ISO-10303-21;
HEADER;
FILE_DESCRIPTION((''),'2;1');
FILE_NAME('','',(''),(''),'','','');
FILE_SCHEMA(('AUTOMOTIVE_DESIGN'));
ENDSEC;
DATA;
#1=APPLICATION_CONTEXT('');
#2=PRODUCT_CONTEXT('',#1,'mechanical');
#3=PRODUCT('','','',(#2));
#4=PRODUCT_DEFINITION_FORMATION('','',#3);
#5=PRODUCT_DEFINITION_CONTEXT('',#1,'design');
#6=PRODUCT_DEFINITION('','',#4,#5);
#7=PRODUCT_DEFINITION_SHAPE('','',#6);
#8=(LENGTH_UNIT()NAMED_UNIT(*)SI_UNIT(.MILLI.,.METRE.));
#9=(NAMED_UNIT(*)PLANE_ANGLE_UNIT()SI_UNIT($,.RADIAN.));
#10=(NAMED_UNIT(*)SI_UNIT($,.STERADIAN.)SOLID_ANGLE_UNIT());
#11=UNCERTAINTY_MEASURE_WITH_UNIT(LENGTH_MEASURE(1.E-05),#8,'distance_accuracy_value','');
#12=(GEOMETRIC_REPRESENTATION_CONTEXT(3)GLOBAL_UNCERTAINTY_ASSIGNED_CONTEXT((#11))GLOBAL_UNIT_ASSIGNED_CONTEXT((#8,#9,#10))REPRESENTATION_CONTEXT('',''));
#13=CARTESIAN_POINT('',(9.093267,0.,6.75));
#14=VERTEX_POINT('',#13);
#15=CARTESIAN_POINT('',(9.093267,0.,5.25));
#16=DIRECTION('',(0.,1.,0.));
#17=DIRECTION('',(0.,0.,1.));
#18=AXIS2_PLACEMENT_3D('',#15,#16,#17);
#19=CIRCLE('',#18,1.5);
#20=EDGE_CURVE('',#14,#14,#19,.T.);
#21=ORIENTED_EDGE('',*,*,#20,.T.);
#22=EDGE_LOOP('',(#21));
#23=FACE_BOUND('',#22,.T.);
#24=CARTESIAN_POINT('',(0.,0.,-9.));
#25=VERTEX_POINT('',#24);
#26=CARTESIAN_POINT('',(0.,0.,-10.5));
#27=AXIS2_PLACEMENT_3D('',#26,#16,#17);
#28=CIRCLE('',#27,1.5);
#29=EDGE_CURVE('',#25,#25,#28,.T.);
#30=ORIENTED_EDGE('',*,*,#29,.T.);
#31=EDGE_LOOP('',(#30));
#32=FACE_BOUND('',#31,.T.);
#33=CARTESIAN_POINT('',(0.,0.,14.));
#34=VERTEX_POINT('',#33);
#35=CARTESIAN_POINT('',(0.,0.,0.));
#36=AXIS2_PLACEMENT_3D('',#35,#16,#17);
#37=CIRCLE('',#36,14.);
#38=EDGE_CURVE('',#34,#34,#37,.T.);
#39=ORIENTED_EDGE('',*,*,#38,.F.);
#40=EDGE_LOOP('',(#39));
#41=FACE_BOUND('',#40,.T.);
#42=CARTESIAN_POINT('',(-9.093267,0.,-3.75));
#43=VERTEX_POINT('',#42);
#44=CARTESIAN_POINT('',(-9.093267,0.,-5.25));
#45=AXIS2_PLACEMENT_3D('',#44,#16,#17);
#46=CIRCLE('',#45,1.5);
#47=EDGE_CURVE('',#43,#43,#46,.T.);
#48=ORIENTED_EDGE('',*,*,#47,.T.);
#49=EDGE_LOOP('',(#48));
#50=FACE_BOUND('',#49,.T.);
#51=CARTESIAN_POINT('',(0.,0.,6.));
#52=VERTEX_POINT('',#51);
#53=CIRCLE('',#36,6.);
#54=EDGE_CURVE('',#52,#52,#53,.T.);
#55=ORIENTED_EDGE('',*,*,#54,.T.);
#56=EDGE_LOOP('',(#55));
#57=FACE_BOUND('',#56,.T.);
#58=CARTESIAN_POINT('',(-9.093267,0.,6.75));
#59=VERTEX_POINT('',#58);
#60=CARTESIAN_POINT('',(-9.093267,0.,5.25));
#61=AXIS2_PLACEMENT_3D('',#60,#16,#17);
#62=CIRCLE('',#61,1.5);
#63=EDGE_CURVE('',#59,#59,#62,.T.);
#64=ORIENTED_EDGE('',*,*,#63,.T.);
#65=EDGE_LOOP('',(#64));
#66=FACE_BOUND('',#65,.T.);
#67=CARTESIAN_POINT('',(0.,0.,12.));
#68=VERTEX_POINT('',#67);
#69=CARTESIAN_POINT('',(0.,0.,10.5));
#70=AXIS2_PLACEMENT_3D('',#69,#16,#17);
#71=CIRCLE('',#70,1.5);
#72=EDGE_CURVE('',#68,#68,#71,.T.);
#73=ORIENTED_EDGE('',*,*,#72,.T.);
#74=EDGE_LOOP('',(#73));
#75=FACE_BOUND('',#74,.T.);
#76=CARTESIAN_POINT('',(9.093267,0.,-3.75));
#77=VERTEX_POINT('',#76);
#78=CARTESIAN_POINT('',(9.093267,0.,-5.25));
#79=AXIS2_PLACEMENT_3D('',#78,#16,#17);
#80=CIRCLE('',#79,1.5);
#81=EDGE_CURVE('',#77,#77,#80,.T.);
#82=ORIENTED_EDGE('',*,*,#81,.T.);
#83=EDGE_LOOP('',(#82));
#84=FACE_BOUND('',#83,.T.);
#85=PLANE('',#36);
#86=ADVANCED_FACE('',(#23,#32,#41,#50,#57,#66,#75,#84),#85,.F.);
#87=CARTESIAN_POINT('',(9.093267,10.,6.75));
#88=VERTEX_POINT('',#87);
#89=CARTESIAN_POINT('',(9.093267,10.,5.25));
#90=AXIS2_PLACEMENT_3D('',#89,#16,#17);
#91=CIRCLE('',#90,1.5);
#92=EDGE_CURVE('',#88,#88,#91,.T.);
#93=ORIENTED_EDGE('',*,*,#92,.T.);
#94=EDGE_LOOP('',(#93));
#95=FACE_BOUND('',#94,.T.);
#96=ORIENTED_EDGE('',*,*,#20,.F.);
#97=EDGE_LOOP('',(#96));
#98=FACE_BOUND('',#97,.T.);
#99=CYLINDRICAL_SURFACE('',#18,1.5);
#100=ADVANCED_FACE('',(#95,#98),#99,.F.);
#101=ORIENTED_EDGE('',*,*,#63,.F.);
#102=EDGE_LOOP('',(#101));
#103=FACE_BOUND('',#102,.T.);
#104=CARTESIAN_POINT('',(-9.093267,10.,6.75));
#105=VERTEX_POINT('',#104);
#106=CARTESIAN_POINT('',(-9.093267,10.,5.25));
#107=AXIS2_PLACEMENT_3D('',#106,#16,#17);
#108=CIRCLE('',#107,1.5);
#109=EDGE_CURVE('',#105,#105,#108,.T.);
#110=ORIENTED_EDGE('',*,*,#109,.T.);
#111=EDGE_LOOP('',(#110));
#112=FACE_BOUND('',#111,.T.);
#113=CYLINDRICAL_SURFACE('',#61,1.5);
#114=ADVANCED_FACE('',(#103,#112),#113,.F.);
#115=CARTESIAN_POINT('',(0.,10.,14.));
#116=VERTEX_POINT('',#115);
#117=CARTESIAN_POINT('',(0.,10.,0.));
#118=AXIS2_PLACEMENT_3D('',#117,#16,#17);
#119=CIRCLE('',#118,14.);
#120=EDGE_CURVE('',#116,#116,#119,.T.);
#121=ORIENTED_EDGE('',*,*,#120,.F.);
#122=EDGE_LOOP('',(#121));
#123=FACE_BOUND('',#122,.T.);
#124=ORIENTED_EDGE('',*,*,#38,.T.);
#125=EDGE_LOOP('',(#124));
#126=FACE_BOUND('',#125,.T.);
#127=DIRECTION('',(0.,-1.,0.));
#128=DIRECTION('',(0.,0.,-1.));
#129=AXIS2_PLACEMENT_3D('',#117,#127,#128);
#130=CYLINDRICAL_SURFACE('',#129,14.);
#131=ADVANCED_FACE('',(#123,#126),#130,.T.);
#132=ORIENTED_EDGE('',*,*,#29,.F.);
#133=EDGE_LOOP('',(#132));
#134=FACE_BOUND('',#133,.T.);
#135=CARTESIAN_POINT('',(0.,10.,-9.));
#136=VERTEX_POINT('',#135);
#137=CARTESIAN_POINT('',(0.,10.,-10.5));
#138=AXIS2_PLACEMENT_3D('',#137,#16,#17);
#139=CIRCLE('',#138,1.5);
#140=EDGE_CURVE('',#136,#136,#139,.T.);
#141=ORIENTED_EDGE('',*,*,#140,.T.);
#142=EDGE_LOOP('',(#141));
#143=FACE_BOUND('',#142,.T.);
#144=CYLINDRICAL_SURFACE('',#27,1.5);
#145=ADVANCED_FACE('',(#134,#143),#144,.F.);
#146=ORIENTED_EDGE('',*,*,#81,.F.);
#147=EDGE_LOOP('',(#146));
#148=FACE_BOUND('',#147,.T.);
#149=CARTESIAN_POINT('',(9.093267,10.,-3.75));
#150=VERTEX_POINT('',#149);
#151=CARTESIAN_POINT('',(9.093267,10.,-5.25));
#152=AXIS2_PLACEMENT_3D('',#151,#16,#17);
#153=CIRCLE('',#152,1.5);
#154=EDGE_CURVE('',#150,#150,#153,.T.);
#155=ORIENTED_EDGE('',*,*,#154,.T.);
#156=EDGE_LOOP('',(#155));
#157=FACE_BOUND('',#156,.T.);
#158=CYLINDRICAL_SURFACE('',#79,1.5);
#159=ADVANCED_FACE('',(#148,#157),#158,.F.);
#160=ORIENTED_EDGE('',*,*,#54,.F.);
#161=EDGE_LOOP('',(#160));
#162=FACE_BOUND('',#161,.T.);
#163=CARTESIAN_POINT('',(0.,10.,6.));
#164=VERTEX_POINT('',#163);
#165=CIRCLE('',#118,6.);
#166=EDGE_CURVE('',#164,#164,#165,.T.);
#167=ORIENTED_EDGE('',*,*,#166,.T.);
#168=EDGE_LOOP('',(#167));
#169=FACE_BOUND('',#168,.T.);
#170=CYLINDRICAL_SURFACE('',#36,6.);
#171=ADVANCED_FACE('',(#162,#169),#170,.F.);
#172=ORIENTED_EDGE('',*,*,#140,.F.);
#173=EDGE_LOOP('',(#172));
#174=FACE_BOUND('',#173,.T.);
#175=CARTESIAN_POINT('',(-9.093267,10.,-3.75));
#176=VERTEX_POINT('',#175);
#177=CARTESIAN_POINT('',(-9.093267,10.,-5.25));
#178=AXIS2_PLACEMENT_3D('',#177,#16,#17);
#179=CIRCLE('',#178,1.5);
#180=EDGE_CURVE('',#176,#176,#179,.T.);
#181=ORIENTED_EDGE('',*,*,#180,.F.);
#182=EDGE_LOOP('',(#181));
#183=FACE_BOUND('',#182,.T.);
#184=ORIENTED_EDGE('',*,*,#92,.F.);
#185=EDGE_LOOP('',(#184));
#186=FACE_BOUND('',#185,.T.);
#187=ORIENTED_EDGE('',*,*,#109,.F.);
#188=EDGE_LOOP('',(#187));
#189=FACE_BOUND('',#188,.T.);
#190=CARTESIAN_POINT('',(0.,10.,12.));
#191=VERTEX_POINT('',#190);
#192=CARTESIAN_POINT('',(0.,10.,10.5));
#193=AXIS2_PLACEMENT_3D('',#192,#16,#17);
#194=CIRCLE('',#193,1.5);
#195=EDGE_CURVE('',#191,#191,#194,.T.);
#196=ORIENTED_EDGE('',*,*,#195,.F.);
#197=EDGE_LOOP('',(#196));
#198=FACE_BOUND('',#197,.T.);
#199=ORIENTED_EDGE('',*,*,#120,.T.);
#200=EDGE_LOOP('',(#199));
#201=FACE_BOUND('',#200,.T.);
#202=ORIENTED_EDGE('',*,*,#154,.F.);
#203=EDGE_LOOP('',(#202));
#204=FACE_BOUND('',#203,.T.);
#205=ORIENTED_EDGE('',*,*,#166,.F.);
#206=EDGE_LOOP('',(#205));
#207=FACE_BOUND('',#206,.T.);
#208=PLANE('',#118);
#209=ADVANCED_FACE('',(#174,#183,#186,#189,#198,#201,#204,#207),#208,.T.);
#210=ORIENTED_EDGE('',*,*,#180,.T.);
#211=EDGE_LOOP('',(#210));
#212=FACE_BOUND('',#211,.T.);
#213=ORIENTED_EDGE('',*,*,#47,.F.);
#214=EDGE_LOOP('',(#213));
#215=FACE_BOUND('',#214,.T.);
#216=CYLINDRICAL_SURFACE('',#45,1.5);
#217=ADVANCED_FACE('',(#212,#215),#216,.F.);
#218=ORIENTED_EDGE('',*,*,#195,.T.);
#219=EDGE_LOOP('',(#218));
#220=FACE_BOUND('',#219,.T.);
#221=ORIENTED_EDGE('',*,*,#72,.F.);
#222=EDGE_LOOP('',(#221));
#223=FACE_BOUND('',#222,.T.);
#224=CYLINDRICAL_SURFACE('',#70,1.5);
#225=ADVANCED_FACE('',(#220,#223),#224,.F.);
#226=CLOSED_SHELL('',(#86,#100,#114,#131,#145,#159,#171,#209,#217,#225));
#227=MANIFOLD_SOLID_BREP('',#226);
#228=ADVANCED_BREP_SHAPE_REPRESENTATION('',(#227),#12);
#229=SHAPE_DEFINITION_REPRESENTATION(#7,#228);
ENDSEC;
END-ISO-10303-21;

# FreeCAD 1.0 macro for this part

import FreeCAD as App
import Part
import Sketcher

doc = App.newDocument("Part")
body = doc.addObject("PartDesign::Body", "Body")

# Sketch on XZ plane
sketch1 = body.newObject("Sketcher::SketchObject", "Sketch")
sketch1.AttachmentSupport = (doc.getObject("XZ_Plane"), [""])
sketch1.MapMode = "FlatFace"
sketch1.addGeometry(Part.Circle(App.Vector(0, 0, 0), App.Vector(0, 0, 1), 14), False)
sketch1.addConstraint(Sketcher.Constraint("Coincident", 0, 3, -1, 1))
sketch1.addConstraint(Sketcher.Constraint("Diameter", 0, 28.0))
pad1 = body.newObject("PartDesign::Pad", "Pad")
pad1.Profile = sketch1
pad1.Length = 10
pad1.Reversed = True

# Sketch on XZ plane
sketch2 = body.newObject("Sketcher::SketchObject", "Sketch001")
sketch2.AttachmentSupport = (doc.getObject("XZ_Plane"), [""])
sketch2.MapMode = "FlatFace"
sketch2.AttachmentOffset = App.Placement(App.Vector(0, 0, -10), App.Rotation())
sketch2.addGeometry(Part.Circle(App.Vector(0, -10.5, 0), App.Vector(0, 0, 1), 1.5), False)
sketch2.addGeometry(Part.Circle(App.Vector(0, 0, 0), App.Vector(0, 0, 1), 6), False)
sketch2.addGeometry(Part.Circle(App.Vector(9.093267, -5.25, 0), App.Vector(0, 0, 1), 1.5), False)
sketch2.addGeometry(Part.Circle(App.Vector(9.093267, 5.25, 0), App.Vector(0, 0, 1), 1.5), False)
sketch2.addGeometry(Part.Circle(App.Vector(0, 10.5, 0), App.Vector(0, 0, 1), 1.5), False)
sketch2.addGeometry(Part.Circle(App.Vector(-9.093267, 5.25, 0), App.Vector(0, 0, 1), 1.5), False)
sketch2.addGeometry(Part.Circle(App.Vector(-9.093267, -5.25, 0), App.Vector(0, 0, 1), 1.5), False)
sketch2.addConstraint(Sketcher.Constraint("Coincident", 1, 3, -1, 1))
sketch2.addConstraint(Sketcher.Constraint("Equal", 0, 2))
sketch2.addConstraint(Sketcher.Constraint("Equal", 2, 3))
sketch2.addConstraint(Sketcher.Constraint("Equal", 3, 4))
sketch2.addConstraint(Sketcher.Constraint("Equal", 4, 5))
sketch2.addConstraint(Sketcher.Constraint("Equal", 5, 6))
sketch2.addConstraint(Sketcher.Constraint("Symmetric", 0, 3, 4, 3, -1, 1))
sketch2.addConstraint(Sketcher.Constraint("Symmetric", 2, 3, 5, 3, -1, 1))
sketch2.addConstraint(Sketcher.Constraint("Symmetric", 3, 3, 6, 3, -1, 1))
sketch2.addConstraint(Sketcher.Constraint("Symmetric", 3, 3, 5, 3, -2))
sketch2.addConstraint(Sketcher.Constraint("PointOnObject", 0, 3, -2))
sketch2.addConstraint(Sketcher.Constraint("Diameter", 0, 3.0))
sketch2.addConstraint(Sketcher.Constraint("Diameter", 1, 12.0))
sketch2.addConstraint(Sketcher.Constraint("DistanceY", 0, 3, 4, 3, 21.0))
sketch2.addConstraint(Sketcher.Constraint("DistanceY", 2, 3, 3, 3, 10.5))
sketch2.addConstraint(Sketcher.Constraint("DistanceX", -1, 1, 2, 3, 9.093267))
pocket1 = body.newObject("PartDesign::Pocket", "Pocket")
pocket1.Profile = sketch2
pocket1.Type = "ThroughAll"
pocket1.Reversed = True

doc.recompute()
